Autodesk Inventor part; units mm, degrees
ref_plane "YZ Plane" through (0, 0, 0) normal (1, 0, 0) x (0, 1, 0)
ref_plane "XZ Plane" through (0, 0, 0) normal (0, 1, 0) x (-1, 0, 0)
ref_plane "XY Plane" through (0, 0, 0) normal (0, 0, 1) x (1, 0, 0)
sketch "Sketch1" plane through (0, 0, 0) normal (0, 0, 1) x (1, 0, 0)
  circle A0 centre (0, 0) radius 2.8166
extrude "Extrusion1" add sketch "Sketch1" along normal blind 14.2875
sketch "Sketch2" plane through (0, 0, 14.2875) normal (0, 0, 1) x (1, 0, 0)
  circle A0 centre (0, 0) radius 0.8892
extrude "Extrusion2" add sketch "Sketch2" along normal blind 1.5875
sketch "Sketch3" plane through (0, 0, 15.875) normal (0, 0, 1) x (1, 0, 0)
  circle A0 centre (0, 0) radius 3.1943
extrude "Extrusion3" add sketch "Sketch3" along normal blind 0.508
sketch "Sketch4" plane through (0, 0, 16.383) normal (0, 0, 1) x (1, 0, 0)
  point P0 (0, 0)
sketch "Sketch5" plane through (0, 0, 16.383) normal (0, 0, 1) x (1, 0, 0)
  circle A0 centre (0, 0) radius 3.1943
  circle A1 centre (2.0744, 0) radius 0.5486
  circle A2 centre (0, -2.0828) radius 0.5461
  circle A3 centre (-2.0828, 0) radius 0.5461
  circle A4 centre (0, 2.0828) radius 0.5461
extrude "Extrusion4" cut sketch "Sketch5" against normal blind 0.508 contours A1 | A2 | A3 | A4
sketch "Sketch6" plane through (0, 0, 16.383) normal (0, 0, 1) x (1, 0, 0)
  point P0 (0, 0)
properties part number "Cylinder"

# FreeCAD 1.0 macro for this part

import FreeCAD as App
import Part
import Sketcher
Q = App.Units.Quantity

doc = App.newDocument("Part")
body = doc.addObject("PartDesign::Body", "Body")

# Sketch on XY plane
sketch1 = doc.addObject("Sketcher::SketchObject", "Sketch")
body.addObject(sketch1)
sketch1.AttachmentSupport = (doc.XY_Plane, [""])
sketch1.MapMode = "FlatFace"
sketch1.addGeometry(Part.Circle(App.Vector(0, 0, 0), App.Vector(0, 0, 1), 2.8), False)
sketch1.addConstraint(Sketcher.Constraint("Coincident", 0, 3, -1, 1))
sketch1.addConstraint(Sketcher.Constraint("Diameter", 0, Q("5.6332 mm")))
pad1 = doc.addObject("PartDesign::Pad", "Pad")
body.addObject(pad1)
pad1.Profile = sketch1
pad1.Length = Q("0.5625 in")

# Sketch on XY plane
sketch2 = doc.addObject("Sketcher::SketchObject", "Sketch001")
body.addObject(sketch2)
sketch2.AttachmentSupport = (doc.XY_Plane, [""])
sketch2.MapMode = "FlatFace"
sketch2.AttachmentOffset = App.Placement(App.Vector(0, 0, 0.5625 * 25.4), App.Rotation())
sketch2.addGeometry(Part.Circle(App.Vector(0, 0, 0), App.Vector(0, 0, 1), 0.9), False)
sketch2.addConstraint(Sketcher.Constraint("Coincident", 0, 3, -1, 1))
sketch2.addConstraint(Sketcher.Constraint("Diameter", 0, Q("1.7784 mm")))
pad2 = doc.addObject("PartDesign::Pad", "Pad001")
body.addObject(pad2)
pad2.Profile = sketch2
pad2.Length = Q("0.0625 in")

# Sketch on XY plane
sketch3 = doc.addObject("Sketcher::SketchObject", "Sketch002")
body.addObject(sketch3)
sketch3.AttachmentSupport = (doc.XY_Plane, [""])
sketch3.MapMode = "FlatFace"
sketch3.AttachmentOffset = App.Placement(App.Vector(0, 0, 0.625 * 25.4), App.Rotation())
sketch3.addGeometry(Part.Circle(App.Vector(0, 0, 0), App.Vector(0, 0, 1), 3.2), False)
sketch3.addConstraint(Sketcher.Constraint("Coincident", 0, 3, -1, 1))
sketch3.addConstraint(Sketcher.Constraint("Diameter", 0, Q("6.3886 mm")))
pad3 = doc.addObject("PartDesign::Pad", "Pad002")
body.addObject(pad3)
pad3.Profile = sketch3
pad3.Length = Q("0.02 in")

# Sketch on XY plane
sketch4 = doc.addObject("Sketcher::SketchObject", "Sketch003")
body.addObject(sketch4)
sketch4.AttachmentSupport = (doc.XY_Plane, [""])
sketch4.MapMode = "FlatFace"
sketch4.AttachmentOffset = App.Placement(App.Vector(0, 0, 0.645 * 25.4), App.Rotation())
sketch4.addGeometry(Part.Circle(App.Vector(2.1, 0, 0), App.Vector(0, 0, 1), 0.5), False)
sketch4.addGeometry(Part.Circle(App.Vector(0, -2.1, 0), App.Vector(0, 0, 1), 0.5), False)
sketch4.addGeometry(Part.Circle(App.Vector(-2.1, 0, 0), App.Vector(0, 0, 1), 0.5), False)
sketch4.addGeometry(Part.Circle(App.Vector(0, 2.1, 0), App.Vector(0, 0, 1), 0.5), False)
sketch4.addConstraint(Sketcher.Constraint("Equal", 1, 2))
sketch4.addConstraint(Sketcher.Constraint("Equal", 2, 3))
sketch4.addConstraint(Sketcher.Constraint("Symmetric", 1, 3, 3, 3, -1, 1))
sketch4.addConstraint(Sketcher.Constraint("PointOnObject", 0, 3, -1))
sketch4.addConstraint(Sketcher.Constraint("PointOnObject", 1, 3, -2))
sketch4.addConstraint(Sketcher.Constraint("PointOnObject", 2, 3, -1))
sketch4.addConstraint(Sketcher.Constraint("Diameter", 1, Q("0.043 in")))
sketch4.addConstraint(Sketcher.Constraint("Diameter", 0, Q("0.0432 in")))
sketch4.addConstraint(Sketcher.Constraint("DistanceY", 1, 3, -1, 1, Q("0.082 in")))
sketch4.addConstraint(Sketcher.Constraint("DistanceX", 2, 3, -1, 1, Q("0.082 in")))
sketch4.addConstraint(Sketcher.Constraint("DistanceX", -1, 1, 0, 3, Q("2.0744 mm")))
pocket1 = doc.addObject("PartDesign::Pocket", "Pocket")
body.addObject(pocket1)
pocket1.Profile = sketch4
pocket1.Length = Q("0.02 in")

doc.recompute()
